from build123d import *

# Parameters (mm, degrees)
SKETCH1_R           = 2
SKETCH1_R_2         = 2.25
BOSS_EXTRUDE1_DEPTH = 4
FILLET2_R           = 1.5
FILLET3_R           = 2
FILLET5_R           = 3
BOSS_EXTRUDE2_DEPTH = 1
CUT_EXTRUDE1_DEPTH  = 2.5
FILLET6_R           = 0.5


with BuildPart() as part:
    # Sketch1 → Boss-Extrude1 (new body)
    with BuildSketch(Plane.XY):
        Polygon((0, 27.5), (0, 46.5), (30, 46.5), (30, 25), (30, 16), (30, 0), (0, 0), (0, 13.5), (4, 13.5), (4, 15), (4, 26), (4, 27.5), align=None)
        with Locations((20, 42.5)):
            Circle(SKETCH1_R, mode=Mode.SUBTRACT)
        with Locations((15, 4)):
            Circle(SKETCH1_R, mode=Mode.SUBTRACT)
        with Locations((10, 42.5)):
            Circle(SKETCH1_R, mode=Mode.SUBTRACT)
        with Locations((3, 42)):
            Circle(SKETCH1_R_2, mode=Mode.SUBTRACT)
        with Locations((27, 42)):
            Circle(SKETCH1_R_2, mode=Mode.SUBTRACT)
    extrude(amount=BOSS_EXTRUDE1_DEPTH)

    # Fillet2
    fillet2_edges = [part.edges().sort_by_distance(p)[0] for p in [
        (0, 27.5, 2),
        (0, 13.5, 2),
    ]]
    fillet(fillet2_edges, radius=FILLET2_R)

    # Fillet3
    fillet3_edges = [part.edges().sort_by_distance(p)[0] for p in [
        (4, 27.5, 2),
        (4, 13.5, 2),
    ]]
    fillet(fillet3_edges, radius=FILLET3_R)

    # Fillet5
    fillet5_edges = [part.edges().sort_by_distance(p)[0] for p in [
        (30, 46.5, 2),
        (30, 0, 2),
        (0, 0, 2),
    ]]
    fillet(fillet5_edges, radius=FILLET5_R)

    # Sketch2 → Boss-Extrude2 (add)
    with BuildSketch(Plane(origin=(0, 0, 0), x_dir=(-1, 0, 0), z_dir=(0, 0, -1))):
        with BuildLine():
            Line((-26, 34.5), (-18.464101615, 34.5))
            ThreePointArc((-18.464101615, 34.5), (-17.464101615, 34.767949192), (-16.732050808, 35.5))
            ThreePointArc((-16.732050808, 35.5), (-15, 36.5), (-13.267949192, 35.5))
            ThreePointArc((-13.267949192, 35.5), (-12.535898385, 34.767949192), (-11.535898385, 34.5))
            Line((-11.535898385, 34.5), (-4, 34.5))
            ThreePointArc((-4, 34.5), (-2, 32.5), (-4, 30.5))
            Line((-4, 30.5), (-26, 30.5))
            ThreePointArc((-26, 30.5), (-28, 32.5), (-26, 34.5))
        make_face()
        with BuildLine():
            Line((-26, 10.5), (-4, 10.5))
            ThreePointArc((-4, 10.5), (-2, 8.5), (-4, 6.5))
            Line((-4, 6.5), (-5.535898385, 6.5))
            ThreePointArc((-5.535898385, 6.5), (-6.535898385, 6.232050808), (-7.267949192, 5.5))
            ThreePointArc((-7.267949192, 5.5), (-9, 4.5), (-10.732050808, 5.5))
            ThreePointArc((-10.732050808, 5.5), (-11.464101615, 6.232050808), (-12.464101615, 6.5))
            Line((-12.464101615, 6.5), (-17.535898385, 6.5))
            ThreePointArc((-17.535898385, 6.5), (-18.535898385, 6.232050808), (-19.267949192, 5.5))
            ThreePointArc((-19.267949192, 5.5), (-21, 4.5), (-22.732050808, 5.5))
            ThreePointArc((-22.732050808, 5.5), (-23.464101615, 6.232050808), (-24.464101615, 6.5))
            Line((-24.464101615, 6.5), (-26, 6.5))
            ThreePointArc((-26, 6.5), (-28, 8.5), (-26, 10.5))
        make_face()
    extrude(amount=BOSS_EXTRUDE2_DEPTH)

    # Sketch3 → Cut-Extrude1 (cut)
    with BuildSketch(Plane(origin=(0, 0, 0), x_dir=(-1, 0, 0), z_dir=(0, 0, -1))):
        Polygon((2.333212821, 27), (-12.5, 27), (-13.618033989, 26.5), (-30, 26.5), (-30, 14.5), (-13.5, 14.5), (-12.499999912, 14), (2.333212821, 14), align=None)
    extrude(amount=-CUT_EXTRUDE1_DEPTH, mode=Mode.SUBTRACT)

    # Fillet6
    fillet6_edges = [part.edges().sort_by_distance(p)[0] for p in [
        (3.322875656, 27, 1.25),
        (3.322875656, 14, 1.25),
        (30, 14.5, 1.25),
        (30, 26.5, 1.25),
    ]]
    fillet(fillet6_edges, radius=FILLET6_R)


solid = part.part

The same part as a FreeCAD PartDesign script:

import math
import FreeCAD as App
import Part
import Sketcher
from FreeCAD import Vector
Q = App.Units.Quantity


def edges_at(feature, points):
    """Names of the edges that pass closest to the given points."""
    edges = feature.Shape.Edges
    near = lambda p: min(range(len(edges)), key=lambda i: edges[i].distToShape(Part.Vertex(*p))[0])
    return sorted({f"Edge{near(p) + 1}" for p in points})


def add_polygon(sketch, points):
    """Adds a closed chain of lines whose ends are joined by coincident constraints."""
    first, n = sketch.GeometryCount, len(points)
    for a, b in zip(points, points[1:] + points[:1]):
        sketch.addGeometry(Part.LineSegment(App.Vector(*a, 0), App.Vector(*b, 0)), False)
    for i in range(n):
        sketch.addConstraint(Sketcher.Constraint("Coincident", first + i, 2, first + (i + 1) % n, 1))

doc = App.newDocument("Part")
body = doc.addObject("PartDesign::Body", "Body")

# Sketch on XY plane
sketch1 = doc.addObject("Sketcher::SketchObject", "Sketch")
body.addObject(sketch1)
sketch1.AttachmentSupport = (doc.XY_Plane, [""])
sketch1.MapMode = "FlatFace"
add_polygon(sketch1, [(0, 46.5), (0, 27.5), (4, 27.5), (4, 13.5), (0, 13.5), (0, 0), (30, 0), (30, 46.5)])  # lines 0-7
sketch1.addGeometry(Part.Circle(Vector(15, 4, 0), Vector(0, 0, 1), 2), False)  # 8
sketch1.addGeometry(Part.Circle(Vector(27, 42, 0), Vector(0, 0, 1), 2.25), False)  # 9
sketch1.addGeometry(Part.Circle(Vector(20, 42.5, 0), Vector(0, 0, 1), 2), False)  # 10
sketch1.addGeometry(Part.Circle(Vector(10, 42.5, 0), Vector(0, 0, 1), 2), False)  # 11
sketch1.addGeometry(Part.Circle(Vector(3, 42, 0), Vector(0, 0, 1), 2.25), False)  # 12
sketch1.addConstraint([
    Sketcher.Constraint("Vertical", 0),
    Sketcher.Constraint("Horizontal", 1),
    Sketcher.Constraint("Vertical", 2),
    Sketcher.Constraint("Horizontal", 3),
    Sketcher.Constraint("Vertical", 4),
    Sketcher.Constraint("Horizontal", 5),
    Sketcher.Constraint("Vertical", 6),
    Sketcher.Constraint("Horizontal", 7),
    Sketcher.Constraint("Coincident", 4, 2, -1, 1),
    Sketcher.Constraint("Equal", 8, 10),
    Sketcher.Constraint("Equal", 10, 11),
    Sketcher.Constraint("Equal", 9, 12),
    Sketcher.Constraint("PointOnObject", 0, 2, -2),
    Sketcher.Constraint("Horizontal", 10, 3, 11, 3),
    Sketcher.Constraint("Horizontal", 9, 3, 12, 3),
    Sketcher.Constraint("Diameter", 8, Q("4 mm")),
    Sketcher.Constraint("Diameter", 9, Q("4.5 mm")),
    Sketcher.Constraint("DistanceX", 1, 1, 1, 2, Q("4 mm")),
    Sketcher.Constraint("DistanceX", 5, 1, 5, 2, Q("30 mm")),
    Sketcher.Constraint("DistanceY", 0, 2, 0, 1, Q("19 mm")),
    Sketcher.Constraint("DistanceY", 2, 2, 2, 1, Q("14 mm")),
    Sketcher.Constraint("DistanceY", 4, 2, 4, 1, Q("13.5 mm")),
    Sketcher.Constraint("DistanceX", -1, 1, 8, 3, Q("15 mm")),
    Sketcher.Constraint("DistanceY", -1, 1, 8, 3, Q("4 mm")),
    Sketcher.Constraint("DistanceX", -1, 1, 9, 3, Q("27 mm")),
    Sketcher.Constraint("DistanceY", -1, 1, 9, 3, Q("42 mm")),
    Sketcher.Constraint("DistanceX", -1, 1, 10, 3, Q("20 mm")),
    Sketcher.Constraint("DistanceX", -1, 1, 11, 3, Q("10 mm")),
    Sketcher.Constraint("DistanceX", -1, 1, 12, 3, Q("3 mm")),
    Sketcher.Constraint("DistanceY", 0, 2, 11, 3, Q("15 mm")),
])
pad1 = doc.addObject("PartDesign::Pad", "Pad")
body.addObject(pad1)
pad1.Profile = sketch1
pad1.Length = 4
doc.recompute()

fillet = doc.addObject("PartDesign::Fillet", "Fillet")
body.addObject(fillet)
fillet.Base = (pad1, edges_at(pad1, [(0, 27.5, 2), (0, 13.5, 2)]))
fillet.Radius = 1.5
doc.recompute()

fillet2 = doc.addObject("PartDesign::Fillet", "Fillet001")
body.addObject(fillet2)
fillet2.Base = (fillet, edges_at(fillet, [(4, 27.5, 2), (4, 13.5, 2)]))
fillet2.Radius = 2
doc.recompute()

fillet3 = doc.addObject("PartDesign::Fillet", "Fillet002")
body.addObject(fillet3)
fillet3.Base = (fillet2, edges_at(fillet2, [(30, 46.5, 2), (30, 0, 2), (0, 0, 2)]))
fillet3.Radius = 3

# Sketch on XY plane
sketch2 = doc.addObject("Sketcher::SketchObject", "Sketch001")
body.addObject(sketch2)
sketch2.AttachmentSupport = (doc.XY_Plane, [""])
sketch2.MapMode = "FlatFace"
sketch2.addGeometry([
    Part.LineSegment(Vector(18.464102, 34.5, 0), Vector(26, 34.5, 0)),  # 0
    Part.ArcOfCircle(Part.Circle(Vector(26, 32.5, 0), Vector(0, 0, 1), 2), math.radians(-90), math.radians(90)),  # 1
    Part.LineSegment(Vector(26, 30.5, 0), Vector(4, 30.5, 0)),  # 2
    Part.ArcOfCircle(Part.Circle(Vector(4, 32.5, 0), Vector(0, 0, 1), 2), math.radians(90), math.radians(270)),  # 3
    Part.LineSegment(Vector(4, 34.5, 0), Vector(11.535898, 34.5, 0)),  # 4
    Part.ArcOfCircle(Part.Circle(Vector(11.535898, 36.5, 0), Vector(0, 0, 1), 2), math.radians(-90), math.radians(-30)),  # 5
    Part.ArcOfCircle(Part.Circle(Vector(15, 34.5, 0), Vector(0, 0, 1), 2), math.radians(30), math.radians(150)),  # 6
    Part.ArcOfCircle(Part.Circle(Vector(18.464102, 36.5, 0), Vector(0, 0, 1), 2), math.radians(-150), math.radians(-90)),  # 7
    Part.LineSegment(Vector(4, 10.5, 0), Vector(26, 10.5, 0)),  # 8
    Part.ArcOfCircle(Part.Circle(Vector(26, 8.5, 0), Vector(0, 0, 1), 2), math.radians(-90), math.radians(90)),  # 9
    Part.LineSegment(Vector(26, 6.5, 0), Vector(24.464102, 6.5, 0)),  # 10
    Part.ArcOfCircle(Part.Circle(Vector(24.464102, 4.5, 0), Vector(0, 0, 1), 2), math.radians(90), math.radians(150)),  # 11
    Part.ArcOfCircle(Part.Circle(Vector(21, 6.5, 0), Vector(0, 0, 1), 2), math.radians(-150), math.radians(-30)),  # 12
    Part.ArcOfCircle(Part.Circle(Vector(17.535898, 4.5, 0), Vector(0, 0, 1), 2), math.radians(30), math.radians(90)),  # 13
    Part.LineSegment(Vector(17.535898, 6.5, 0), Vector(12.464102, 6.5, 0)),  # 14
    Part.ArcOfCircle(Part.Circle(Vector(12.464102, 4.5, 0), Vector(0, 0, 1), 2), math.radians(90), math.radians(150)),  # 15
    Part.ArcOfCircle(Part.Circle(Vector(9, 6.5, 0), Vector(0, 0, 1), 2), math.radians(-150), math.radians(-30)),  # 16
    Part.ArcOfCircle(Part.Circle(Vector(5.535898, 4.5, 0), Vector(0, 0, 1), 2), math.radians(30), math.radians(90)),  # 17
    Part.LineSegment(Vector(5.535898, 6.5, 0), Vector(4, 6.5, 0)),  # 18
    Part.ArcOfCircle(Part.Circle(Vector(4, 8.5, 0), Vector(0, 0, 1), 2), math.radians(90), math.radians(270)),  # 19
], False)
sketch2.addConstraint([
    Sketcher.Constraint("Tangent", 0, 2, 1, 2),
    Sketcher.Constraint("Tangent", 1, 1, 2, 1),
    Sketcher.Constraint("Tangent", 2, 2, 3, 2),
    Sketcher.Constraint("Tangent", 3, 1, 4, 1),
    Sketcher.Constraint("Tangent", 4, 2, 5, 1),
    Sketcher.Constraint("Tangent", 5, 2, 6, 2),
    Sketcher.Constraint("Tangent", 6, 1, 7, 1),
    Sketcher.Constraint("Tangent", 7, 2, 0, 1),
    Sketcher.Constraint("Tangent", 8, 2, 9, 2),
    Sketcher.Constraint("Tangent", 9, 1, 10, 1),
    Sketcher.Constraint("Tangent", 10, 2, 11, 1),
    Sketcher.Constraint("Tangent", 11, 2, 12, 2),
    Sketcher.Constraint("Tangent", 12, 1, 13, 1),
    Sketcher.Constraint("Tangent", 13, 2, 14, 1),
    Sketcher.Constraint("Tangent", 14, 2, 15, 1),
    Sketcher.Constraint("Tangent", 15, 2, 16, 2),
    Sketcher.Constraint("Tangent", 16, 1, 17, 1),
    Sketcher.Constraint("Tangent", 17, 2, 18, 1),
    Sketcher.Constraint("Tangent", 18, 2, 19, 2),
    Sketcher.Constraint("Tangent", 19, 1, 8, 1),
    Sketcher.Constraint("Horizontal", 0),
    Sketcher.Constraint("Horizontal", 2),
    Sketcher.Constraint("Horizontal", 4),
    Sketcher.Constraint("Horizontal", 8),
    Sketcher.Constraint("Horizontal", 10),
    Sketcher.Constraint("Horizontal", 14),
    Sketcher.Constraint("Horizontal", 18),
    Sketcher.Constraint("Equal", 1, 3),
    Sketcher.Constraint("Equal", 3, 5),
    Sketcher.Constraint("Equal", 5, 6),
    Sketcher.Constraint("Equal", 6, 7),
    Sketcher.Constraint("Equal", 7, 9),
    Sketcher.Constraint("Equal", 9, 11),
    Sketcher.Constraint("Equal", 11, 12),
    Sketcher.Constraint("Equal", 12, 13),
    Sketcher.Constraint("Equal", 13, 15),
    Sketcher.Constraint("Equal", 15, 16),
    Sketcher.Constraint("Equal", 16, 17),
    Sketcher.Constraint("Equal", 17, 19),
    Sketcher.Constraint("Horizontal", 11, 3, 13, 3),
    Sketcher.Constraint("Horizontal", 12, 3, 16, 3),
    Sketcher.Constraint("Horizontal", 6, 3, 0, 2),
    Sketcher.Constraint("Horizontal", 16, 3, 9, 1),
    Sketcher.Constraint("Vertical", 1, 3, 9, 3),
    Sketcher.Constraint("Vertical", 3, 3, 19, 3),
    Sketcher.Constraint("Equal", 0, 4),
    Sketcher.Constraint("Equal", 10, 18),
    Sketcher.Constraint("Radius", 1, Q("2 mm")),
    Sketcher.Constraint("DistanceX", 2, 2, 2, 1, Q("22 mm")),
    Sketcher.Constraint("DistanceX", -1, 1, 1, 3, Q("26 mm")),
    Sketcher.Constraint("DistanceX", -1, 1, 12, 3, Q("21 mm")),
    Sketcher.Constraint("DistanceY", 9, 3, 1, 3, Q("24 mm")),
    Sketcher.Constraint("DistanceY", -1, 1, 1, 3, Q("32.5 mm")),
])
pad2 = doc.addObject("PartDesign::Pad", "Pad001")
body.addObject(pad2)
pad2.Profile = sketch2
pad2.Length = 1
pad2.Reversed = True

# Sketch on XY plane
sketch3 = doc.addObject("Sketcher::SketchObject", "Sketch002")
body.addObject(sketch3)
sketch3.AttachmentSupport = (doc.XY_Plane, [""])
sketch3.MapMode = "FlatFace"
add_polygon(sketch3, [(-2.333213, 27), (12.5, 27), (13.618034, 26.5), (30, 26.5), (30, 14.5), (13.5, 14.5), (12.5, 14), (-2.333213, 14)])  # lines 0-7
sketch3.addConstraint([
    Sketcher.Constraint("Horizontal", 0),
    Sketcher.Constraint("Horizontal", 2),
    Sketcher.Constraint("Vertical", 3),
    Sketcher.Constraint("Horizontal", 4),
    Sketcher.Constraint("Horizontal", 6),
    Sketcher.Constraint("Vertical", 7),
    Sketcher.Constraint("Vertical", 0, 2, 5, 2),
    Sketcher.Constraint("DistanceY", 3, 2, 3, 1, Q("12 mm")),
    Sketcher.Constraint("DistanceY", 7, 1, 7, 2, Q("13 mm")),
    Sketcher.Constraint("DistanceX", 4, 2, 4, 1, Q("16.5 mm")),
    Sketcher.Constraint("DistanceY", -1, 1, 0, 2, Q("27 mm")),
    Sketcher.Constraint("DistanceX", -1, 1, 2, 2, Q("30 mm")),
    Sketcher.Constraint("DistanceX", 0, 2, 4, 2, Q("1 mm")),
    Sketcher.Constraint("DistanceY", -1, 1, 1, 2, Q("26.5 mm")),
    Sketcher.Constraint("DistanceX", 0, 1, 0, 2, Q("14.833213 mm")),
    Sketcher.Constraint("DistanceX", 2, 1, 2, 2, Q("16.381966 mm")),
])
pocket1 = doc.addObject("PartDesign::Pocket", "Pocket")
body.addObject(pocket1)
pocket1.Profile = sketch3
pocket1.Length = 2.5
pocket1.Reversed = True
doc.recompute()

fillet4 = doc.addObject("PartDesign::Fillet", "Fillet003")
body.addObject(fillet4)
fillet4.Base = (pocket1, edges_at(pocket1, [
    (3.323, 27, 1.25),
    (3.323, 14, 1.25),
    (30, 14.5, 1.25),
    (30, 26.5, 1.25),
]))
fillet4.Radius = 0.5

doc.recompute()
